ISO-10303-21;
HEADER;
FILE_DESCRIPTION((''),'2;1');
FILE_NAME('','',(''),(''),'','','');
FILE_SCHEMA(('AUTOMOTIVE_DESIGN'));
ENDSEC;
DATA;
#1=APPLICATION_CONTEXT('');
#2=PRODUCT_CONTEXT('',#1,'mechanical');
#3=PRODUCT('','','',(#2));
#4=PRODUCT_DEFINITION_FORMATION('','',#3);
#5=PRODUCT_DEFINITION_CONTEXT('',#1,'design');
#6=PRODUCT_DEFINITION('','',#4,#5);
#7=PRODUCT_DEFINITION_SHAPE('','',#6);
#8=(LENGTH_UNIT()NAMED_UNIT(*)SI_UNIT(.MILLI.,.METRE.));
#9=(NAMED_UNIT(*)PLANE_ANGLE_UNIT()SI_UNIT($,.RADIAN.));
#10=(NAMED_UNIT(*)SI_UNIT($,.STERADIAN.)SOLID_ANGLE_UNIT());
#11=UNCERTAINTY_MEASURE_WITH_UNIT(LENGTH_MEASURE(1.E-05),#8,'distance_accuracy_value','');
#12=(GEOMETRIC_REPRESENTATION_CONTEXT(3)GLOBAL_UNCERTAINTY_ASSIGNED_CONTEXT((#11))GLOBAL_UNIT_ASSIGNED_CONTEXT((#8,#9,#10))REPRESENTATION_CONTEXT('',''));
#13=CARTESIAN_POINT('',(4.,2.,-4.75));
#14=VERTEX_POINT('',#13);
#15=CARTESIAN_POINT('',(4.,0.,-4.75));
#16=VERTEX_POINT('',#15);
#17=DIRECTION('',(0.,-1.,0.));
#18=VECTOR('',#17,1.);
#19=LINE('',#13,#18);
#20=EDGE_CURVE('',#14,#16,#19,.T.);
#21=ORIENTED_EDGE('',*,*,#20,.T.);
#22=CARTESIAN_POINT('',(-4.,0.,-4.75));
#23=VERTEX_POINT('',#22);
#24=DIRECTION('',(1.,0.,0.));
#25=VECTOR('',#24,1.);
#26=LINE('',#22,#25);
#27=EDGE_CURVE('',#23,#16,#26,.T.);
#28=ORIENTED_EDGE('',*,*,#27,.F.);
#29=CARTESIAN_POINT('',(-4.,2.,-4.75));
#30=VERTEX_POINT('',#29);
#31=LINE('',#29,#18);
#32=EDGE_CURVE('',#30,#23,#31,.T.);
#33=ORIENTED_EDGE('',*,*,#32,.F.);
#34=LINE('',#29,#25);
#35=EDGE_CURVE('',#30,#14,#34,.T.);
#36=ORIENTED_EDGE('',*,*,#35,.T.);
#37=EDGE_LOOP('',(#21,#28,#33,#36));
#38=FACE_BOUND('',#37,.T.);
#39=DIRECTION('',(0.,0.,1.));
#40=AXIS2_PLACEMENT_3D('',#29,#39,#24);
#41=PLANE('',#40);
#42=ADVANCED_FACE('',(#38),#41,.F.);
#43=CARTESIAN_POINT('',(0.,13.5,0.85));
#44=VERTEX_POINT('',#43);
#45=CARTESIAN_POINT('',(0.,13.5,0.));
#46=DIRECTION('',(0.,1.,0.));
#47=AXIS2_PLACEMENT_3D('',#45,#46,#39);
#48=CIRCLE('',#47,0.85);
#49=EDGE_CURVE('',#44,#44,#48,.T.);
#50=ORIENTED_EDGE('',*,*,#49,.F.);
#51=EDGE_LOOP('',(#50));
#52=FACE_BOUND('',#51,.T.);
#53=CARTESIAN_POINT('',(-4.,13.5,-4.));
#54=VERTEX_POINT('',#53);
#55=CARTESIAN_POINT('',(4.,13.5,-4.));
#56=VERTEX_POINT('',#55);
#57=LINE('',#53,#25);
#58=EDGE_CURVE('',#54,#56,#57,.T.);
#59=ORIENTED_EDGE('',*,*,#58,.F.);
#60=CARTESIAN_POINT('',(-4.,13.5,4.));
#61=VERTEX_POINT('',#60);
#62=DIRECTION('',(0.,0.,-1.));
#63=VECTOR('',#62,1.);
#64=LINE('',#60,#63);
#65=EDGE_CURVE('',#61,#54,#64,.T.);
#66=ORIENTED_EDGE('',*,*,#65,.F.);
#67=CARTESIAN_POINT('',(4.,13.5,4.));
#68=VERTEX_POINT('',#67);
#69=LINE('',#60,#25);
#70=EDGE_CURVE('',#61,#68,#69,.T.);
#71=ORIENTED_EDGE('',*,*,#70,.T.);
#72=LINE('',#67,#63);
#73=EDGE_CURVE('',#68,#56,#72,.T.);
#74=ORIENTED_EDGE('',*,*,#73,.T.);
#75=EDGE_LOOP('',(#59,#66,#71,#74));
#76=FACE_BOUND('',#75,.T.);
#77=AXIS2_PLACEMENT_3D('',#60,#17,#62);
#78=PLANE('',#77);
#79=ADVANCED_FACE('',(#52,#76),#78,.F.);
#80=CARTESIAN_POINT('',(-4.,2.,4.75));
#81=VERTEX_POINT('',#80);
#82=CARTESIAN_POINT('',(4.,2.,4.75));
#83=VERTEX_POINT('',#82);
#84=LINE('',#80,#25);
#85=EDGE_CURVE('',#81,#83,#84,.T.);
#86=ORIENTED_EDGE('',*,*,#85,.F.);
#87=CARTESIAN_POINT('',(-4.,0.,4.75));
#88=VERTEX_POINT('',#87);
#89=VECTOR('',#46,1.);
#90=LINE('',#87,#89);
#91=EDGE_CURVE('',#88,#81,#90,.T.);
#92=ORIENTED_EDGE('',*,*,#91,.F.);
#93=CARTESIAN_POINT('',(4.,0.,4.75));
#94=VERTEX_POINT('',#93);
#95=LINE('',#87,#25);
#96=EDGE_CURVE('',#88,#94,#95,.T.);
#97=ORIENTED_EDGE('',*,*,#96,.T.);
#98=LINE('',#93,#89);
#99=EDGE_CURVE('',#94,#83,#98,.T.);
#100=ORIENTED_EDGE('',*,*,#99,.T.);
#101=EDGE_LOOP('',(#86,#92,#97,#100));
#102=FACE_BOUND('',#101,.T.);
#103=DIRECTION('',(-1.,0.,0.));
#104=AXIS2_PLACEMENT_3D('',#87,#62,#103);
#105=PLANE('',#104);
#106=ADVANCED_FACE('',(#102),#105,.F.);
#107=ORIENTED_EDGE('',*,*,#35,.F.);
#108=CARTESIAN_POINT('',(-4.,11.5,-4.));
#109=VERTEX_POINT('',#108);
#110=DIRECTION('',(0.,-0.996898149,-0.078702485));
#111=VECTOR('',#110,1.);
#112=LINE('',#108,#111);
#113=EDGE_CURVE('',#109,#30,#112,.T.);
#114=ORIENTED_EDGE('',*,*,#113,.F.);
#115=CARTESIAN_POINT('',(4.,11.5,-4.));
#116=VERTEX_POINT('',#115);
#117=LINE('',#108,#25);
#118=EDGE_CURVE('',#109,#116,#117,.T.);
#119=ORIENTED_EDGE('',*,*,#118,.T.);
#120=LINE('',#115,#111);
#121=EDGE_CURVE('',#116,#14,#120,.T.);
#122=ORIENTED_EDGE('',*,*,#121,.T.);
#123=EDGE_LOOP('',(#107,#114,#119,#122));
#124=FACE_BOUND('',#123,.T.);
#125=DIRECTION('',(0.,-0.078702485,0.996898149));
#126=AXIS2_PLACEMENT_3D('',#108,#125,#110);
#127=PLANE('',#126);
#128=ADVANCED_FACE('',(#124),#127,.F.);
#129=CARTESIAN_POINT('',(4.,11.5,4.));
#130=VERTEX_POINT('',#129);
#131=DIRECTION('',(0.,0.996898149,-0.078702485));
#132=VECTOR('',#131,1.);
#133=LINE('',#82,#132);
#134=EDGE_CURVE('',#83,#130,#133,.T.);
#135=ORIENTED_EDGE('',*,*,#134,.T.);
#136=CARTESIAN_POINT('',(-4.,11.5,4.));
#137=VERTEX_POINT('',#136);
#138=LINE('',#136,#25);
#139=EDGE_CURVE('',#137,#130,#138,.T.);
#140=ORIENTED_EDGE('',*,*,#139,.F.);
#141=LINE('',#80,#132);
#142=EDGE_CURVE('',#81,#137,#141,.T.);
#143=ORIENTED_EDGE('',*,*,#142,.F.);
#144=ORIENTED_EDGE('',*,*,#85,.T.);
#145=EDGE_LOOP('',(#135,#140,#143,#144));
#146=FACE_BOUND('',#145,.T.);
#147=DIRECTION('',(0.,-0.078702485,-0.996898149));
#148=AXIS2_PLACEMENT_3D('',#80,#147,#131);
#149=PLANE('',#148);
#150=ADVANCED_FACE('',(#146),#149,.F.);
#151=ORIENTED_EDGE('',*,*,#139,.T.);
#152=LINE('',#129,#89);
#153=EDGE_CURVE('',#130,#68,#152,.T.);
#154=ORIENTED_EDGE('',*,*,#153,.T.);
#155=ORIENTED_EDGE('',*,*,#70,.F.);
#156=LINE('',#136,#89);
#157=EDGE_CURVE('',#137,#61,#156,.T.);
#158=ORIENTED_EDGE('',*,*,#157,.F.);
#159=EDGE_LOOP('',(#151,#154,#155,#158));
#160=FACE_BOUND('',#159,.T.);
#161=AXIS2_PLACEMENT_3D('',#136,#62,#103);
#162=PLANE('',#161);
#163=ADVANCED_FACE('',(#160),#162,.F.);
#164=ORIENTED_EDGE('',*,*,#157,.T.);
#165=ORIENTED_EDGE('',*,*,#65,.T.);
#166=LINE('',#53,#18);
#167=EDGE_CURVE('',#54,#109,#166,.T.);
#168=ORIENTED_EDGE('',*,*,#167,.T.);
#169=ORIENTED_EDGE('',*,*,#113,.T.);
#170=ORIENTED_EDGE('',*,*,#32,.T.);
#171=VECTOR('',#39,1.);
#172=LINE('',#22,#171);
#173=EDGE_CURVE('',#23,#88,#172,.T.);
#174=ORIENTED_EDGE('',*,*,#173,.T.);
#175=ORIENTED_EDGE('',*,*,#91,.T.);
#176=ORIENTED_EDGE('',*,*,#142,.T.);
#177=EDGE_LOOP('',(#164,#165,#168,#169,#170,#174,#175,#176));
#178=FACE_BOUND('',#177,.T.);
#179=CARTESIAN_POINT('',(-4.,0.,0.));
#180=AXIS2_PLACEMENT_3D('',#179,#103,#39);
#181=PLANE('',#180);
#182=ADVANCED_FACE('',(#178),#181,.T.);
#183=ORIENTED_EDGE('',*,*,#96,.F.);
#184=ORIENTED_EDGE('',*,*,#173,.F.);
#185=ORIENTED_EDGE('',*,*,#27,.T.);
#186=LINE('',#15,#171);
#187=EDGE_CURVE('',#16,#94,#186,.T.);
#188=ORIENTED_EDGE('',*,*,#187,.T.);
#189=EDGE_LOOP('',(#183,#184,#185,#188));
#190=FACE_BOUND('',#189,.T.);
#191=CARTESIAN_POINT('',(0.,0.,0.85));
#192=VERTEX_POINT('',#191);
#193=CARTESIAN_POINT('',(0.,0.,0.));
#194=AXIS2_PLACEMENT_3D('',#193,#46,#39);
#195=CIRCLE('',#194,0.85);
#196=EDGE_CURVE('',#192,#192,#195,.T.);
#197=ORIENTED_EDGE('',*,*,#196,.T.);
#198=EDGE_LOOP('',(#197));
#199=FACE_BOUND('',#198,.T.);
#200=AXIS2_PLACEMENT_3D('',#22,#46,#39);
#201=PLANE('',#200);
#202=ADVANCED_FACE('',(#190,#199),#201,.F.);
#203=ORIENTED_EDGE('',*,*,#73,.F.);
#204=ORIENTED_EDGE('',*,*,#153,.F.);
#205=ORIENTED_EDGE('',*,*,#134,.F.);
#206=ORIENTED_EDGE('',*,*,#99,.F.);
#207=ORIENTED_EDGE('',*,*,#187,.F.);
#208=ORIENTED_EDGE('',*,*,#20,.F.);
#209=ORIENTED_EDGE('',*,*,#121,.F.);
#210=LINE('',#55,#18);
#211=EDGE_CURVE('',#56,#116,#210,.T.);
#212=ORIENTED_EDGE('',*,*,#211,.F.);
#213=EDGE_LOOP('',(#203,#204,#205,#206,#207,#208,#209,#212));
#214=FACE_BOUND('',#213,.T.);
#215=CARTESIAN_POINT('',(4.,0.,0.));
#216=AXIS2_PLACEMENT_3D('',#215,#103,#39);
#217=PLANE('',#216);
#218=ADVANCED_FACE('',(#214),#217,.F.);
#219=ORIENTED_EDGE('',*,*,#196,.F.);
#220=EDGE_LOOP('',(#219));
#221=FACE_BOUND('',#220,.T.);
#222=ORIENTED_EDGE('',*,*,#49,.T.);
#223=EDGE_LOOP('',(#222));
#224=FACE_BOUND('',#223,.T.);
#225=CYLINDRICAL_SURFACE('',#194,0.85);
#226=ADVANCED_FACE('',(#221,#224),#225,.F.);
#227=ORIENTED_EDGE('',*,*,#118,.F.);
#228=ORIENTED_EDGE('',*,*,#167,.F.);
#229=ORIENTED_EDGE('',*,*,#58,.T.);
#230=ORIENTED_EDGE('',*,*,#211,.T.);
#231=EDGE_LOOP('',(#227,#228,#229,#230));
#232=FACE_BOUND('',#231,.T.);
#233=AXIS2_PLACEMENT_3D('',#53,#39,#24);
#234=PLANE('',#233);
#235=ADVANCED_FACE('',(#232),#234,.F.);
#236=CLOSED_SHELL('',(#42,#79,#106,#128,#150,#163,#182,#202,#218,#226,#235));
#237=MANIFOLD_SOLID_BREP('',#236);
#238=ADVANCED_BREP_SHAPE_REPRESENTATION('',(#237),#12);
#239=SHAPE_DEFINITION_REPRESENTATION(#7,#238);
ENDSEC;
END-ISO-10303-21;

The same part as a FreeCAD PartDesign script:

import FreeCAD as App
import Part
import Sketcher

V = App.Vector
Q = App.Units.Quantity


def add_polygon(sketch, points):
    """Adds a closed chain of lines whose ends are joined by coincident constraints."""
    first, n = sketch.GeometryCount, len(points)
    for a, b in zip(points, points[1:] + points[:1]):
        sketch.addGeometry(Part.LineSegment(App.Vector(*a, 0), App.Vector(*b, 0)), False)
    for i in range(n):
        sketch.addConstraint(Sketcher.Constraint("Coincident", first + i, 2, first + (i + 1) % n, 1))

doc = App.newDocument("Part")
body = doc.addObject("PartDesign::Body", "Body")

# Sketch on YZ plane
sketch1 = body.newObject("Sketcher::SketchObject", "Sketch")
sketch1.AttachmentSupport = (doc.getObject("YZ_Plane"), [""])
sketch1.MapMode = "FlatFace"
add_polygon(sketch1, [(2, -4.8), (0, -4.8), (0, 4.8), (2, 4.8), (11.5, 4), (13.5, 4), (13.5, -4), (11.5, -4)])  # lines 0-7
sketch1.addConstraint([
    Sketcher.Constraint("Horizontal", 0),
    Sketcher.Constraint("Vertical", 1),
    Sketcher.Constraint("Horizontal", 2),
    Sketcher.Constraint("Horizontal", 4),
    Sketcher.Constraint("Vertical", 5),
    Sketcher.Constraint("Horizontal", 6),
    Sketcher.Constraint("Symmetric", 0, 2, 1, 2, -1, 1),
    Sketcher.Constraint("Symmetric", 3, 2, 6, 2, -1),
    Sketcher.Constraint("Vertical", 2, 2, 7, 2),
    Sketcher.Constraint("Equal", 2, 4),
    Sketcher.Constraint("DistanceX", 0, 2, 0, 1, Q("2 mm")),
    Sketcher.Constraint("DistanceY", 5, 2, 5, 1, Q("8 mm")),
    Sketcher.Constraint("DistanceY", 1, 1, 1, 2, Q("9.5 mm")),
    Sketcher.Constraint("DistanceX", -1, 1, 3, 2, Q("11.5 mm")),
])
pad1 = body.newObject("PartDesign::Pad", "Pad")
pad1.Profile = sketch1
pad1.Type = "TwoLengths"
pad1.Length = 4
pad1.Length2 = 4
pad1.Reversed = True

# Sketch on XZ plane
sketch2 = body.newObject("Sketcher::SketchObject", "Sketch001")
sketch2.AttachmentSupport = (doc.getObject("XZ_Plane"), [""])
sketch2.MapMode = "FlatFace"
sketch2.AttachmentOffset = App.Placement(V(0, 0, -13.5), App.Rotation())
sketch2.addGeometry(Part.Circle(V(0, 0, 0), V(0, 0, 1), 0.8), False)
sketch2.addConstraint([
    Sketcher.Constraint("Coincident", 0, 3, -1, 1),
    Sketcher.Constraint("Diameter", 0, Q("1.7 mm")),
])
pocket1 = body.newObject("PartDesign::Pocket", "Pocket")
pocket1.Profile = sketch2
pocket1.Type = "ThroughAll"
pocket1.Reversed = True

doc.recompute()
